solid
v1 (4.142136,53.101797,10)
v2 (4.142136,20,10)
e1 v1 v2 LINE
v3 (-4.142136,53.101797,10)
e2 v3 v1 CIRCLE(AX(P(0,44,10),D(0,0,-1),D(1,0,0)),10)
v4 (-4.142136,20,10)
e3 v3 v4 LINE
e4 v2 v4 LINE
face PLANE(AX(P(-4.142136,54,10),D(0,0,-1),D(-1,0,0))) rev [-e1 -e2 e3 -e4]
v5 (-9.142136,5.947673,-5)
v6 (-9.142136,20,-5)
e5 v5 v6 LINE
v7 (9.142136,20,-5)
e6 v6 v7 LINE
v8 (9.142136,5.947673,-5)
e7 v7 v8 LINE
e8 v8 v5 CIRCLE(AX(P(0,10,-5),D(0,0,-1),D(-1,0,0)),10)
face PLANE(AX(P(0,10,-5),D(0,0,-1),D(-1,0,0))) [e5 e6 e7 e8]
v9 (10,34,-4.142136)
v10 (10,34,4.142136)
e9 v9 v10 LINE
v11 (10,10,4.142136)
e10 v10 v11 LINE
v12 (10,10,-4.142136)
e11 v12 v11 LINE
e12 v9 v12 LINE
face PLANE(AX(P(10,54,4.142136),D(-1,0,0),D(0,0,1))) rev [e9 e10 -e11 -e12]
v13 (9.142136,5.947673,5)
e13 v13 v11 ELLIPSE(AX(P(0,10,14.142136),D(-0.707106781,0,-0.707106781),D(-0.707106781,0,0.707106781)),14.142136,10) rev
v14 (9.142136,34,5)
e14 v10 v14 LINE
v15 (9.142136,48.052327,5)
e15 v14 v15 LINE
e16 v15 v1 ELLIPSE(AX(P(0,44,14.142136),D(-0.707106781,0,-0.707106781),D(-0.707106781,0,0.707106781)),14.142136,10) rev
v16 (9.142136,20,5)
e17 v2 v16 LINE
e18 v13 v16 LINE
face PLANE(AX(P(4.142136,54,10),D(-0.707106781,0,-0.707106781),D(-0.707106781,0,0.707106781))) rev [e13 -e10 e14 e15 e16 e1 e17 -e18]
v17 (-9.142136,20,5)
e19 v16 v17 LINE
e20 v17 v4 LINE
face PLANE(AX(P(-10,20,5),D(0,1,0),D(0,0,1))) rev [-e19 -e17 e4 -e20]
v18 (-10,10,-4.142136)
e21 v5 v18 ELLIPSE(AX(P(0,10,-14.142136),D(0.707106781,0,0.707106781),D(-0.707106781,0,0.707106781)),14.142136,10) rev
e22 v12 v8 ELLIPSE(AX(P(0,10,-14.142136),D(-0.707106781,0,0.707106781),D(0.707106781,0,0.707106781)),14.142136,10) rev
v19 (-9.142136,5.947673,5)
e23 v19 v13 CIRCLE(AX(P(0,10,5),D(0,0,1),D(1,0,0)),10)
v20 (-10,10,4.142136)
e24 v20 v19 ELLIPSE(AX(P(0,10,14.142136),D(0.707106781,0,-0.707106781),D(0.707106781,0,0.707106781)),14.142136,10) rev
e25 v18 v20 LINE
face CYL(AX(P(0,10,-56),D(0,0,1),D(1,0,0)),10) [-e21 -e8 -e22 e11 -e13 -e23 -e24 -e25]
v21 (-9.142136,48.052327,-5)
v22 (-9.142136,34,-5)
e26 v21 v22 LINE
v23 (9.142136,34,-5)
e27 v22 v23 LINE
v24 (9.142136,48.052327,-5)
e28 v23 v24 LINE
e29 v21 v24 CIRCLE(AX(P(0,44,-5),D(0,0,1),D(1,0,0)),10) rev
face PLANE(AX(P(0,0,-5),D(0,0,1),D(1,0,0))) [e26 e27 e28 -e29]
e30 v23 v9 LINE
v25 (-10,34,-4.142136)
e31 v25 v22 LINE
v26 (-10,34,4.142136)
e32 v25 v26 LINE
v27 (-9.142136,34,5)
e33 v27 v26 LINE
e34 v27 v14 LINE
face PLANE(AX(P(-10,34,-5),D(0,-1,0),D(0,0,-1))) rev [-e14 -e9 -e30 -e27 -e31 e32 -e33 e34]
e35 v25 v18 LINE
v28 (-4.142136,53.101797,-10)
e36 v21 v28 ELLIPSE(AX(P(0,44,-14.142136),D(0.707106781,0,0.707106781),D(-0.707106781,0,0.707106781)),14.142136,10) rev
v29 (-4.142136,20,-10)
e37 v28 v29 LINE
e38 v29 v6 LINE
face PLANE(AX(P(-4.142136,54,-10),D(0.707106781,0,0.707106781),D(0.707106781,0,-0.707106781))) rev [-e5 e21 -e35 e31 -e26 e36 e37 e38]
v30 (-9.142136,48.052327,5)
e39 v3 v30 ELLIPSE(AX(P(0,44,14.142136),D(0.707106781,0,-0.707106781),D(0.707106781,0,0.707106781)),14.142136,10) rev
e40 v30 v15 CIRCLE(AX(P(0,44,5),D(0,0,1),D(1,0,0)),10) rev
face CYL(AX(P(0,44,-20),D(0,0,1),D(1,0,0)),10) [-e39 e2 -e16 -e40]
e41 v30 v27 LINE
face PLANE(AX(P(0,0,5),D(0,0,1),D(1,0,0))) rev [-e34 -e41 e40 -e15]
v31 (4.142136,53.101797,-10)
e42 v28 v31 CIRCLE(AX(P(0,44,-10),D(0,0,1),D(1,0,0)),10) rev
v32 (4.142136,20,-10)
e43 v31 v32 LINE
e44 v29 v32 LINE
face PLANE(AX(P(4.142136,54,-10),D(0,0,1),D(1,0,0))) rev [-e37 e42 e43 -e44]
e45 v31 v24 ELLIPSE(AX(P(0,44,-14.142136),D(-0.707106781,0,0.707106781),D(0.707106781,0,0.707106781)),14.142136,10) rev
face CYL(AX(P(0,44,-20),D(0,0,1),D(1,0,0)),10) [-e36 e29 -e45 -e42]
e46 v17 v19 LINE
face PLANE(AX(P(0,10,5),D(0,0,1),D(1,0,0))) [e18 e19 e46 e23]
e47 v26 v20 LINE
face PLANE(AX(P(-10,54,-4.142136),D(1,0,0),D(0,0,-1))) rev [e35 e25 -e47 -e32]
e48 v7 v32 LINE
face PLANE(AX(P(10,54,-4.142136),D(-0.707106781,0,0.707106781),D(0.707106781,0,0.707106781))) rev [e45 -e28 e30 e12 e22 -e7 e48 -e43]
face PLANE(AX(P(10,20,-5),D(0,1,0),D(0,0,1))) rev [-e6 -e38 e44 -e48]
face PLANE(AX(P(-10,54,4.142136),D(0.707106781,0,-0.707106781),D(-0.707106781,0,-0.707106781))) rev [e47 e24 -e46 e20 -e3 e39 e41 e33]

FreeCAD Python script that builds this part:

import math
import FreeCAD as App
import Part
import Sketcher
from FreeCAD import Vector

doc = App.newDocument("Part")
body = doc.addObject("PartDesign::Body", "Body")

# Sketch on XZ plane
sketch1 = body.newObject("Sketcher::SketchObject", "Sketch")
sketch1.AttachmentSupport = (doc.getObject("XZ_Plane"), [""])
sketch1.MapMode = "FlatFace"
sketch1.addGeometry(Part.LineSegment(Vector(10, -4.142136, 0), Vector(4.142136, -10, 0)), False)
sketch1.addGeometry(Part.LineSegment(Vector(4.142136, -10, 0), Vector(-4.142136, -10, 0)), False)
sketch1.addGeometry(Part.LineSegment(Vector(-4.142136, -10, 0), Vector(-10, -4.142136, 0)), False)
sketch1.addGeometry(Part.LineSegment(Vector(-10, -4.142136, 0), Vector(-10, 4.142136, 0)), False)
sketch1.addGeometry(Part.LineSegment(Vector(-10, 4.142136, 0), Vector(-4.142136, 10, 0)), False)
sketch1.addGeometry(Part.LineSegment(Vector(-4.142136, 10, 0), Vector(4.142136, 10, 0)), False)
sketch1.addGeometry(Part.LineSegment(Vector(4.142136, 10, 0), Vector(10, 4.142136, 0)), False)
sketch1.addGeometry(Part.LineSegment(Vector(10, 4.142136, 0), Vector(10, -4.142136, 0)), False)
sketch1.addConstraint(Sketcher.Constraint("Coincident", 0, 2, 1, 1))
sketch1.addConstraint(Sketcher.Constraint("Coincident", 1, 2, 2, 1))
sketch1.addConstraint(Sketcher.Constraint("Coincident", 2, 2, 3, 1))
sketch1.addConstraint(Sketcher.Constraint("Coincident", 3, 2, 4, 1))
sketch1.addConstraint(Sketcher.Constraint("Coincident", 4, 2, 5, 1))
sketch1.addConstraint(Sketcher.Constraint("Coincident", 5, 2, 6, 1))
sketch1.addConstraint(Sketcher.Constraint("Coincident", 6, 2, 7, 1))
sketch1.addConstraint(Sketcher.Constraint("Coincident", 7, 2, 0, 1))
sketch1.addConstraint(Sketcher.Constraint("Horizontal", 1))
sketch1.addConstraint(Sketcher.Constraint("Vertical", 3))
sketch1.addConstraint(Sketcher.Constraint("Horizontal", 5))
sketch1.addConstraint(Sketcher.Constraint("Vertical", 7))
sketch1.addConstraint(Sketcher.Constraint("Symmetric", 0, 2, 4, 2, -1, 1))
sketch1.addConstraint(Sketcher.Constraint("Symmetric", 2, 2, 6, 2, -1, 1))
sketch1.addConstraint(Sketcher.Constraint("Perpendicular", 0, 2))
sketch1.addConstraint(Sketcher.Constraint("Perpendicular", 2, 4))
sketch1.addConstraint(Sketcher.Constraint("Perpendicular", 4, 6))
sketch1.addConstraint(Sketcher.Constraint("Horizontal", 3, 2, 6, 2))
sketch1.addConstraint(Sketcher.Constraint("Vertical", 1, 2, 4, 2))
sketch1.addConstraint(Sketcher.Constraint("Equal", 5, 3))
sketch1.addConstraint(Sketcher.Constraint("DistanceY", 0, 2, -1, 1, 10.0))
sketch1.addConstraint(Sketcher.Constraint("DistanceX", 1, 2, 1, 1, 8.284271))
pad1 = body.newObject("PartDesign::Pad", "Pad")
pad1.Profile = sketch1
pad1.Length = 54
pad1.Reversed = True

# Sketch on XY plane
sketch2 = body.newObject("Sketcher::SketchObject", "Sketch001")
sketch2.AttachmentSupport = (doc.getObject("XY_Plane"), [""])
sketch2.MapMode = "FlatFace"
sketch2.AttachmentOffset = App.Placement(Vector(0, 0, 10), App.Rotation())
sketch2.addGeometry(Part.LineSegment(Vector(-10, 10, 0), Vector(-10, -2.389296, 0)), False)
sketch2.addGeometry(Part.LineSegment(Vector(-10, -2.389296, 0), Vector(10, -2.389296, 0)), False)
sketch2.addGeometry(Part.LineSegment(Vector(10, -2.389296, 0), Vector(10, 10, 0)), False)
sketch2.addGeometry(Part.ArcOfCircle(Part.Circle(Vector(0, 10, 0), Vector(0, 0, 1), 10), math.radians(180), math.radians(360)), False)
sketch2.addConstraint(Sketcher.Constraint("Coincident", 0, 2, 1, 1))
sketch2.addConstraint(Sketcher.Constraint("Coincident", 1, 2, 2, 1))
sketch2.addConstraint(Sketcher.Constraint("Tangent", 2, 2, 3, 2))
sketch2.addConstraint(Sketcher.Constraint("Tangent", 3, 1, 0, 1))
sketch2.addConstraint(Sketcher.Constraint("Vertical", 0))
sketch2.addConstraint(Sketcher.Constraint("Horizontal", 1))
sketch2.addConstraint(Sketcher.Constraint("Vertical", 2))
sketch2.addConstraint(Sketcher.Constraint("PointOnObject", 3, 3, -2))
sketch2.addConstraint(Sketcher.Constraint("Radius", 3, 10.0))
sketch2.addConstraint(Sketcher.Constraint("DistanceY", -1, 1, 3, 3, 10.0))
sketch2.addConstraint(Sketcher.Constraint("DistanceY", 0, 2, 0, 1, 12.389296))
pocket1 = body.newObject("PartDesign::Pocket", "Pocket")
pocket1.Profile = sketch2
pocket1.Length = 66

# Sketch on XY plane
sketch3 = body.newObject("Sketcher::SketchObject", "Sketch002")
sketch3.AttachmentSupport = (doc.getObject("XY_Plane"), [""])
sketch3.MapMode = "FlatFace"
sketch3.AttachmentOffset = App.Placement(Vector(0, 0, 10), App.Rotation())
sketch3.addGeometry(Part.LineSegment(Vector(-10, 20, 0), Vector(-10, 10, 0)), False)
sketch3.addGeometry(Part.ArcOfCircle(Part.Circle(Vector(0, 10, 0), Vector(0, 0, 1), 10), math.radians(180), math.radians(360)), False)
sketch3.addGeometry(Part.LineSegment(Vector(10, 10, 0), Vector(10, 20, 0)), False)
sketch3.addGeometry(Part.LineSegment(Vector(10, 20, 0), Vector(-10, 20, 0)), False)
sketch3.addConstraint(Sketcher.Constraint("Tangent", 0, 2, 1, 1))
sketch3.addConstraint(Sketcher.Constraint("Tangent", 1, 2, 2, 1))
sketch3.addConstraint(Sketcher.Constraint("Coincident", 2, 2, 3, 1))
sketch3.addConstraint(Sketcher.Constraint("Coincident", 3, 2, 0, 1))
sketch3.addConstraint(Sketcher.Constraint("Vertical", 0))
sketch3.addConstraint(Sketcher.Constraint("Vertical", 2))
sketch3.addConstraint(Sketcher.Constraint("Horizontal", 3))
sketch3.addConstraint(Sketcher.Constraint("PointOnObject", 1, 3, -2))
sketch3.addConstraint(Sketcher.Constraint("Radius", 1, 10.0))
sketch3.addConstraint(Sketcher.Constraint("DistanceY", 0, 2, 0, 1, 10.0))
sketch3.addConstraint(Sketcher.Constraint("DistanceY", -1, 1, 1, 3, 10.0))
pocket2 = body.newObject("PartDesign::Pocket", "Pocket001")
pocket2.Profile = sketch3
pocket2.Length = 5

# Sketch on XY plane
sketch4 = body.newObject("Sketcher::SketchObject", "Sketch003")
sketch4.AttachmentSupport = (doc.getObject("XY_Plane"), [""])
sketch4.MapMode = "FlatFace"
sketch4.AttachmentOffset = App.Placement(Vector(0, 0, -5), App.Rotation())
sketch4.addGeometry(Part.LineSegment(Vector(10, 20, 0), Vector(10, 10, 0)), False)
sketch4.addGeometry(Part.ArcOfCircle(Part.Circle(Vector(0, 10, 0), Vector(0, 0, 1), 10), math.radians(180), math.radians(360)), False)
sketch4.addGeometry(Part.LineSegment(Vector(-10, 10, 0), Vector(-10, 20, 0)), False)
sketch4.addGeometry(Part.LineSegment(Vector(-10, 20, 0), Vector(10, 20, 0)), False)
sketch4.addConstraint(Sketcher.Constraint("Tangent", 0, 2, 1, 2))
sketch4.addConstraint(Sketcher.Constraint("Tangent", 1, 1, 2, 1))
sketch4.addConstraint(Sketcher.Constraint("Coincident", 2, 2, 3, 1))
sketch4.addConstraint(Sketcher.Constraint("Coincident", 3, 2, 0, 1))
sketch4.addConstraint(Sketcher.Constraint("Vertical", 0))
sketch4.addConstraint(Sketcher.Constraint("Vertical", 2))
sketch4.addConstraint(Sketcher.Constraint("Horizontal", 3))
sketch4.addConstraint(Sketcher.Constraint("PointOnObject", 1, 3, -2))
sketch4.addConstraint(Sketcher.Constraint("Radius", 1, 10.0))
sketch4.addConstraint(Sketcher.Constraint("DistanceY", 0, 2, 0, 1, 10.0))
sketch4.addConstraint(Sketcher.Constraint("DistanceY", -1, 1, 1, 3, 10.0))
pocket3 = body.newObject("PartDesign::Pocket", "Pocket002")
pocket3.Profile = sketch4
pocket3.Length = 5

# Sketch on XY plane
sketch5 = body.newObject("Sketcher::SketchObject", "Sketch004")
sketch5.AttachmentSupport = (doc.getObject("XY_Plane"), [""])
sketch5.MapMode = "FlatFace"
sketch5.addGeometry(Part.LineSegment(Vector(-10, 54, 0), Vector(-10, 34, 0)), False)
sketch5.addGeometry(Part.LineSegment(Vector(-10, 34, 0), Vector(10, 34, 0)), False)
sketch5.addGeometry(Part.LineSegment(Vector(10, 34, 0), Vector(10, 54, 0)), False)
sketch5.addGeometry(Part.LineSegment(Vector(10, 54, 0), Vector(-10, 54, 0)), False)
sketch5.addConstraint(Sketcher.Constraint("Coincident", 0, 2, 1, 1))
sketch5.addConstraint(Sketcher.Constraint("Coincident", 1, 2, 2, 1))
sketch5.addConstraint(Sketcher.Constraint("Coincident", 2, 2, 3, 1))
sketch5.addConstraint(Sketcher.Constraint("Coincident", 3, 2, 0, 1))
sketch5.addConstraint(Sketcher.Constraint("Vertical", 0))
sketch5.addConstraint(Sketcher.Constraint("Horizontal", 1))
sketch5.addConstraint(Sketcher.Constraint("Vertical", 2))
sketch5.addConstraint(Sketcher.Constraint("Horizontal", 3))
sketch5.addConstraint(Sketcher.Constraint("Equal", 3, 0))
sketch5.addConstraint(Sketcher.Constraint("DistanceX", 1, 1, 1, 2, 20.0))
sketch5.addConstraint(Sketcher.Constraint("DistanceX", 0, 2, -1, 1, 10.0))
sketch5.addConstraint(Sketcher.Constraint("DistanceY", -1, 1, 0, 2, 34.0))
pocket4 = body.newObject("PartDesign::Pocket", "Pocket003")
pocket4.Profile = sketch5
pocket4.Length = 10
pocket4.Midplane = True

# Sketch on XY plane
sketch6 = body.newObject("Sketcher::SketchObject", "Sketch005")
sketch6.AttachmentSupport = (doc.getObject("XY_Plane"), [""])
sketch6.MapMode = "FlatFace"
sketch6.AttachmentOffset = App.Placement(Vector(0, 0, 10), App.Rotation())
sketch6.addGeometry(Part.LineSegment(Vector(-10, 63.661192, 0), Vector(-10, 44, 0)), False)
sketch6.addGeometry(Part.ArcOfCircle(Part.Circle(Vector(0, 44, 0), Vector(0, 0, 1), 10), math.radians(0), math.radians(180)), False)
sketch6.addGeometry(Part.LineSegment(Vector(10, 44, 0), Vector(10, 63.661192, 0)), False)
sketch6.addGeometry(Part.LineSegment(Vector(10, 63.661192, 0), Vector(-10, 63.661192, 0)), False)
sketch6.addConstraint(Sketcher.Constraint("Tangent", 0, 2, 1, 2))
sketch6.addConstraint(Sketcher.Constraint("Tangent", 1, 1, 2, 1))
sketch6.addConstraint(Sketcher.Constraint("Coincident", 2, 2, 3, 1))
sketch6.addConstraint(Sketcher.Constraint("Coincident", 3, 2, 0, 1))
sketch6.addConstraint(Sketcher.Constraint("Vertical", 0))
sketch6.addConstraint(Sketcher.Constraint("Vertical", 2))
sketch6.addConstraint(Sketcher.Constraint("Horizontal", 3))
sketch6.addConstraint(Sketcher.Constraint("PointOnObject", 1, 3, -2))
sketch6.addConstraint(Sketcher.Constraint("Radius", 1, 10.0))
sketch6.addConstraint(Sketcher.Constraint("DistanceY", -1, 1, 1, 3, 44.0))
sketch6.addConstraint(Sketcher.Constraint("DistanceY", 0, 2, 0, 1, 19.661192))
pocket5 = body.newObject("PartDesign::Pocket", "Pocket004")
pocket5.Profile = sketch6
pocket5.Length = 30

doc.recompute()
